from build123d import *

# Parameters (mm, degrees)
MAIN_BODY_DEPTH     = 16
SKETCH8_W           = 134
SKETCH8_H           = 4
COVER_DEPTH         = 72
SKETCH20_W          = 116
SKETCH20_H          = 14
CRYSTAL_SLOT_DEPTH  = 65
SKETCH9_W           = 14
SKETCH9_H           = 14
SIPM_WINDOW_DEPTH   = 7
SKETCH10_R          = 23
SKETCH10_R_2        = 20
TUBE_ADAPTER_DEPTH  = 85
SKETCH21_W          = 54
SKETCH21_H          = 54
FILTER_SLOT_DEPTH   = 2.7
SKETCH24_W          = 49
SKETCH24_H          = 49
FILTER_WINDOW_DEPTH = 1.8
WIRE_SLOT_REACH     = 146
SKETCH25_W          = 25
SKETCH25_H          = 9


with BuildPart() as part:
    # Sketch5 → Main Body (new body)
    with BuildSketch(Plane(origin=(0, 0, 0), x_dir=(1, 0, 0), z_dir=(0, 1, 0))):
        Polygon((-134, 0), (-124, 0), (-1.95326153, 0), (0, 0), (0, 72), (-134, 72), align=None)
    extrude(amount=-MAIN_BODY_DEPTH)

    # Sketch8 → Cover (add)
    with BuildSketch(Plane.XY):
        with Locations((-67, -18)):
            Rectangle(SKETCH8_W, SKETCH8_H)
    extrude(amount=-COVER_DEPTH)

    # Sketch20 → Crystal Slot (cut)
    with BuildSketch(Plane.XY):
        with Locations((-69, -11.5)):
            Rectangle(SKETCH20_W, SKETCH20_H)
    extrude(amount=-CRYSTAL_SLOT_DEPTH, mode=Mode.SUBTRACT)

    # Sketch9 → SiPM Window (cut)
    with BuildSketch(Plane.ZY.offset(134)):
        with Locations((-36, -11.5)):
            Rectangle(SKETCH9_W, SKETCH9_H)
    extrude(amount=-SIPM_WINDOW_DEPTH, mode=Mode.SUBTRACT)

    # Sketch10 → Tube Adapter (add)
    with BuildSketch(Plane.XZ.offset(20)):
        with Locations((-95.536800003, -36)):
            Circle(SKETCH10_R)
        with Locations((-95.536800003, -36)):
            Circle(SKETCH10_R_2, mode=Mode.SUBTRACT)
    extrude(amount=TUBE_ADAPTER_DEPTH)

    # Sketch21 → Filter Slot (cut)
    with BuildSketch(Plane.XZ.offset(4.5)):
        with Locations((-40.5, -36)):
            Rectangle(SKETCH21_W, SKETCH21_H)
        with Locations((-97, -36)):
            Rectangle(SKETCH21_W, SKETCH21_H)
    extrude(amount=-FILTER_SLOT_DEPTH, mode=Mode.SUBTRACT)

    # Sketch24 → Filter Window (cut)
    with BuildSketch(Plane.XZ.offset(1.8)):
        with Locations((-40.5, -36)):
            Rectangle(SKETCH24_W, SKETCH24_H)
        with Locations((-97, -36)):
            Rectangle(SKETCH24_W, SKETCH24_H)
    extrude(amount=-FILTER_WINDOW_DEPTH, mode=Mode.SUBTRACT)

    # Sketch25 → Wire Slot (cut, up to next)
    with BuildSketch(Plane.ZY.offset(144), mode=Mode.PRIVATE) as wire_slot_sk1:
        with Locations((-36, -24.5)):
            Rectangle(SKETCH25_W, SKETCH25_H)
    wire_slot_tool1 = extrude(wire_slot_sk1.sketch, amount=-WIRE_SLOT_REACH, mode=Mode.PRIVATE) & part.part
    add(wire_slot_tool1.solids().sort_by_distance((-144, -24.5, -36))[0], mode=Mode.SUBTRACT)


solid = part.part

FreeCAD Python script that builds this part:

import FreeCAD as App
import Part
import Sketcher

doc = App.newDocument("Part")
params = doc.addObject("Spreadsheet::Sheet", "Params")
for row, (alias, value) in enumerate([
    ("sketch1_width", "134 mm"),
    ("sketch1_height", "72 mm"),
    ("pad1_length", "16 mm"),
    ("sketch2_width", "134 mm"),
    ("sketch2_height", "4 mm"),
    ("pad2_length", "72 mm"),
    ("sketch3_width", "116 mm"),
    ("sketch3_height", "14 mm"),
    ("pocket1_length", "65 mm"),
    ("sketch4_width", "14 mm"),
    ("pocket2_length", "7 mm"),
    ("sketch5_diameter", "46 mm"),
    ("sketch5_diameter2", "40 mm"),
    ("pad3_length", "85 mm"),
    ("sketch6_width", "54 mm"),
    ("pocket3_length", "2.7 mm"),
    ("sketch7_width", "49 mm"),
    ("pocket4_length", "1.8 mm"),
    ("sketch8_width", "9 mm"),
    ("sketch8_height", "25 mm"),
    ("pocket5_length", "32.850705 mm"),
], start=1):
    params.set(f"A{row}", alias)
    params.set(f"B{row}", "=" + value)
    params.setAlias(f"B{row}", alias)

body = doc.addObject("PartDesign::Body", "Body")

# Sketch on XZ plane
sketch1 = doc.addObject("Sketcher::SketchObject", "Sketch")
body.addObject(sketch1)
sketch1.AttachmentSupport = (doc.XZ_Plane, [""])
sketch1.MapMode = "FlatFace"
sketch1.addGeometry(Part.LineSegment(App.Vector(-134, 0, 0), App.Vector(0, 0, 0)), False)
sketch1.addGeometry(Part.LineSegment(App.Vector(0, 0, 0), App.Vector(0, -72, 0)), False)
sketch1.addGeometry(Part.LineSegment(App.Vector(0, -72, 0), App.Vector(-134, -72, 0)), False)
sketch1.addGeometry(Part.LineSegment(App.Vector(-134, -72, 0), App.Vector(-134, 0, 0)), False)
sketch1.addConstraint(Sketcher.Constraint("Coincident", 0, 2, 1, 1))
sketch1.addConstraint(Sketcher.Constraint("Coincident", 1, 2, 2, 1))
sketch1.addConstraint(Sketcher.Constraint("Coincident", 2, 2, 3, 1))
sketch1.addConstraint(Sketcher.Constraint("Coincident", 3, 2, 0, 1))
sketch1.addConstraint(Sketcher.Constraint("Horizontal", 0))
sketch1.addConstraint(Sketcher.Constraint("Vertical", 1))
sketch1.addConstraint(Sketcher.Constraint("Horizontal", 2))
sketch1.addConstraint(Sketcher.Constraint("Vertical", 3))
sketch1.addConstraint(Sketcher.Constraint("Coincident", 0, 2, -1, 1))
sketch1.addConstraint(Sketcher.Constraint("DistanceX", 0, 1, 0, 2, 134.0))
sketch1.addConstraint(Sketcher.Constraint("DistanceY", 1, 2, 1, 1, 72.0))
sketch1.setExpression("Constraints[9]", "Params.sketch1_width")
sketch1.setExpression("Constraints[10]", "Params.sketch1_height")
pad1 = doc.addObject("PartDesign::Pad", "Pad")
body.addObject(pad1)
pad1.Profile = sketch1
pad1.setExpression("Length", "Params.pad1_length")

# Sketch on XY plane
sketch2 = doc.addObject("Sketcher::SketchObject", "Sketch001")
body.addObject(sketch2)
sketch2.AttachmentSupport = (doc.XY_Plane, [""])
sketch2.MapMode = "FlatFace"
sketch2.addGeometry(Part.LineSegment(App.Vector(-134, -16, 0), App.Vector(-134, -20, 0)), False)
sketch2.addGeometry(Part.LineSegment(App.Vector(-134, -20, 0), App.Vector(0, -20, 0)), False)
sketch2.addGeometry(Part.LineSegment(App.Vector(0, -20, 0), App.Vector(0, -16, 0)), False)
sketch2.addGeometry(Part.LineSegment(App.Vector(0, -16, 0), App.Vector(-134, -16, 0)), False)
sketch2.addConstraint(Sketcher.Constraint("Coincident", 0, 2, 1, 1))
sketch2.addConstraint(Sketcher.Constraint("Coincident", 1, 2, 2, 1))
sketch2.addConstraint(Sketcher.Constraint("Coincident", 2, 2, 3, 1))
sketch2.addConstraint(Sketcher.Constraint("Coincident", 3, 2, 0, 1))
sketch2.addConstraint(Sketcher.Constraint("Vertical", 0))
sketch2.addConstraint(Sketcher.Constraint("Horizontal", 1))
sketch2.addConstraint(Sketcher.Constraint("Vertical", 2))
sketch2.addConstraint(Sketcher.Constraint("Horizontal", 3))
sketch2.addConstraint(Sketcher.Constraint("PointOnObject", 1, 2, -2))
sketch2.addConstraint(Sketcher.Constraint("DistanceX", 1, 1, 1, 2, 134.0))
sketch2.addConstraint(Sketcher.Constraint("DistanceY", 0, 2, 0, 1, 4.0))
sketch2.addConstraint(Sketcher.Constraint("DistanceY", 0, 2, -1, 1, 20.0))
sketch2.setExpression("Constraints[9]", "Params.sketch2_width")
sketch2.setExpression("Constraints[10]", "Params.sketch2_height")
pad2 = doc.addObject("PartDesign::Pad", "Pad001")
body.addObject(pad2)
pad2.Profile = sketch2
pad2.setExpression("Length", "Params.pad2_length")
pad2.Reversed = True

# Sketch on XY plane
sketch3 = doc.addObject("Sketcher::SketchObject", "Sketch002")
body.addObject(sketch3)
sketch3.AttachmentSupport = (doc.XY_Plane, [""])
sketch3.MapMode = "FlatFace"
sketch3.addGeometry(Part.LineSegment(App.Vector(-127, -4.5, 0), App.Vector(-127, -18.5, 0)), False)
sketch3.addGeometry(Part.LineSegment(App.Vector(-127, -18.5, 0), App.Vector(-11, -18.5, 0)), False)
sketch3.addGeometry(Part.LineSegment(App.Vector(-11, -18.5, 0), App.Vector(-11, -4.5, 0)), False)
sketch3.addGeometry(Part.LineSegment(App.Vector(-11, -4.5, 0), App.Vector(-127, -4.5, 0)), False)
sketch3.addConstraint(Sketcher.Constraint("Coincident", 0, 2, 1, 1))
sketch3.addConstraint(Sketcher.Constraint("Coincident", 1, 2, 2, 1))
sketch3.addConstraint(Sketcher.Constraint("Coincident", 2, 2, 3, 1))
sketch3.addConstraint(Sketcher.Constraint("Coincident", 3, 2, 0, 1))
sketch3.addConstraint(Sketcher.Constraint("Vertical", 0))
sketch3.addConstraint(Sketcher.Constraint("Horizontal", 1))
sketch3.addConstraint(Sketcher.Constraint("Vertical", 2))
sketch3.addConstraint(Sketcher.Constraint("Horizontal", 3))
sketch3.addConstraint(Sketcher.Constraint("DistanceX", 1, 1, 1, 2, 116.0))
sketch3.addConstraint(Sketcher.Constraint("DistanceY", 0, 2, 0, 1, 14.0))
sketch3.addConstraint(Sketcher.Constraint("DistanceX", 0, 2, -1, 1, 127.0))
sketch3.addConstraint(Sketcher.Constraint("DistanceY", 0, 2, -1, 1, 18.5))
sketch3.setExpression("Constraints[8]", "Params.sketch3_width")
sketch3.setExpression("Constraints[9]", "Params.sketch3_height")
pocket1 = doc.addObject("PartDesign::Pocket", "Pocket")
body.addObject(pocket1)
pocket1.Profile = sketch3
pocket1.setExpression("Length", "Params.pocket1_length")

# Sketch on YZ plane
sketch4 = doc.addObject("Sketcher::SketchObject", "Sketch003")
body.addObject(sketch4)
sketch4.AttachmentSupport = (doc.YZ_Plane, [""])
sketch4.MapMode = "FlatFace"
sketch4.AttachmentOffset = App.Placement(App.Vector(0, 0, -134), App.Rotation())
sketch4.addGeometry(Part.LineSegment(App.Vector(-4.5, -43, 0), App.Vector(-18.5, -43, 0)), False)
sketch4.addGeometry(Part.LineSegment(App.Vector(-18.5, -43, 0), App.Vector(-18.5, -29, 0)), False)
sketch4.addGeometry(Part.LineSegment(App.Vector(-18.5, -29, 0), App.Vector(-4.5, -29, 0)), False)
sketch4.addGeometry(Part.LineSegment(App.Vector(-4.5, -29, 0), App.Vector(-4.5, -43, 0)), False)
sketch4.addConstraint(Sketcher.Constraint("Coincident", 0, 2, 1, 1))
sketch4.addConstraint(Sketcher.Constraint("Coincident", 1, 2, 2, 1))
sketch4.addConstraint(Sketcher.Constraint("Coincident", 2, 2, 3, 1))
sketch4.addConstraint(Sketcher.Constraint("Coincident", 3, 2, 0, 1))
sketch4.addConstraint(Sketcher.Constraint("Horizontal", 0))
sketch4.addConstraint(Sketcher.Constraint("Vertical", 1))
sketch4.addConstraint(Sketcher.Constraint("Horizontal", 2))
sketch4.addConstraint(Sketcher.Constraint("Vertical", 3))
sketch4.addConstraint(Sketcher.Constraint("Equal", 2, 1))
sketch4.addConstraint(Sketcher.Constraint("DistanceX", 0, 2, 0, 1, 14.0))
sketch4.addConstraint(Sketcher.Constraint("DistanceY", 0, 2, -1, 1, 43.0))
sketch4.addConstraint(Sketcher.Constraint("DistanceX", 0, 2, -1, 1, 18.5))
sketch4.setExpression("Constraints[9]", "Params.sketch4_width")
pocket2 = doc.addObject("PartDesign::Pocket", "Pocket001")
body.addObject(pocket2)
pocket2.Profile = sketch4
pocket2.setExpression("Length", "Params.pocket2_length")
pocket2.Reversed = True

# Sketch on XZ plane
sketch5 = doc.addObject("Sketcher::SketchObject", "Sketch004")
body.addObject(sketch5)
sketch5.AttachmentSupport = (doc.XZ_Plane, [""])
sketch5.MapMode = "FlatFace"
sketch5.AttachmentOffset = App.Placement(App.Vector(0, 0, 20), App.Rotation())
sketch5.addGeometry(Part.Circle(App.Vector(-95.5368, -36, 0), App.Vector(0, 0, 1), 23), False)
sketch5.addGeometry(Part.Circle(App.Vector(-95.5368, -36, 0), App.Vector(0, 0, 1), 20), False)
sketch5.addConstraint(Sketcher.Constraint("Coincident", 1, 3, 0, 3))
sketch5.addConstraint(Sketcher.Constraint("Diameter", 0, 46.0))
sketch5.addConstraint(Sketcher.Constraint("Diameter", 1, 40.0))
sketch5.addConstraint(Sketcher.Constraint("DistanceY", 0, 3, -1, 1, 36.0))
sketch5.addConstraint(Sketcher.Constraint("DistanceX", 0, 3, -1, 1, 95.5368))
sketch5.setExpression("Constraints[1]", "Params.sketch5_diameter")
sketch5.setExpression("Constraints[2]", "Params.sketch5_diameter2")
pad3 = doc.addObject("PartDesign::Pad", "Pad002")
body.addObject(pad3)
pad3.Profile = sketch5
pad3.setExpression("Length", "Params.pad3_length")

# Sketch on XZ plane
sketch6 = doc.addObject("Sketcher::SketchObject", "Sketch005")
body.addObject(sketch6)
sketch6.AttachmentSupport = (doc.XZ_Plane, [""])
sketch6.MapMode = "FlatFace"
sketch6.AttachmentOffset = App.Placement(App.Vector(0, 0, 4.5), App.Rotation())
sketch6.addGeometry(Part.LineSegment(App.Vector(-67.5, -9, 0), App.Vector(-67.5, -63, 0)), False)
sketch6.addGeometry(Part.LineSegment(App.Vector(-67.5, -63, 0), App.Vector(-13.5, -63, 0)), False)
sketch6.addGeometry(Part.LineSegment(App.Vector(-13.5, -63, 0), App.Vector(-13.5, -9, 0)), False)
sketch6.addGeometry(Part.LineSegment(App.Vector(-13.5, -9, 0), App.Vector(-67.5, -9, 0)), False)
sketch6.addGeometry(Part.LineSegment(App.Vector(-124, -9, 0), App.Vector(-124, -63, 0)), False)
sketch6.addGeometry(Part.LineSegment(App.Vector(-124, -63, 0), App.Vector(-70, -63, 0)), False)
sketch6.addGeometry(Part.LineSegment(App.Vector(-70, -63, 0), App.Vector(-70, -9, 0)), False)
sketch6.addGeometry(Part.LineSegment(App.Vector(-70, -9, 0), App.Vector(-124, -9, 0)), False)
sketch6.addConstraint(Sketcher.Constraint("Coincident", 0, 2, 1, 1))
sketch6.addConstraint(Sketcher.Constraint("Coincident", 1, 2, 2, 1))
sketch6.addConstraint(Sketcher.Constraint("Coincident", 2, 2, 3, 1))
sketch6.addConstraint(Sketcher.Constraint("Coincident", 3, 2, 0, 1))
sketch6.addConstraint(Sketcher.Constraint("Coincident", 4, 2, 5, 1))
sketch6.addConstraint(Sketcher.Constraint("Coincident", 5, 2, 6, 1))
sketch6.addConstraint(Sketcher.Constraint("Coincident", 6, 2, 7, 1))
sketch6.addConstraint(Sketcher.Constraint("Coincident", 7, 2, 4, 1))
sketch6.addConstraint(Sketcher.Constraint("Vertical", 0))
sketch6.addConstraint(Sketcher.Constraint("Horizontal", 1))
sketch6.addConstraint(Sketcher.Constraint("Vertical", 2))
sketch6.addConstraint(Sketcher.Constraint("Horizontal", 3))
sketch6.addConstraint(Sketcher.Constraint("Vertical", 4))
sketch6.addConstraint(Sketcher.Constraint("Horizontal", 5))
sketch6.addConstraint(Sketcher.Constraint("Vertical", 6))
sketch6.addConstraint(Sketcher.Constraint("Horizontal", 7))
sketch6.addConstraint(Sketcher.Constraint("Horizontal", 1, 2, 4, 2))
sketch6.addConstraint(Sketcher.Constraint("Horizontal", 3, 2, 6, 2))
sketch6.addConstraint(Sketcher.Constraint("Equal", 3, 5))
sketch6.addConstraint(Sketcher.Constraint("Equal", 7, 0))
sketch6.addConstraint(Sketcher.Constraint("DistanceX", 1, 1, 1, 2, 54.0))
sketch6.addConstraint(Sketcher.Constraint("DistanceY", 0, 2, -1, 1, 63.0))
sketch6.addConstraint(Sketcher.Constraint("DistanceX", 4, 2, -1, 1, 124.0))
sketch6.addConstraint(Sketcher.Constraint("DistanceX", 0, 2, -1, 1, 67.5))
sketch6.setExpression("Constraints[20]", "Params.sketch6_width")
pocket3 = doc.addObject("PartDesign::Pocket", "Pocket002")
body.addObject(pocket3)
pocket3.Profile = sketch6
pocket3.setExpression("Length", "Params.pocket3_length")

# Sketch on XZ plane
sketch7 = doc.addObject("Sketcher::SketchObject", "Sketch006")
body.addObject(sketch7)
sketch7.AttachmentSupport = (doc.XZ_Plane, [""])
sketch7.MapMode = "FlatFace"
sketch7.AttachmentOffset = App.Placement(App.Vector(0, 0, 1.8), App.Rotation())
sketch7.addGeometry(Part.LineSegment(App.Vector(-65, -11.5, 0), App.Vector(-65, -60.5, 0)), False)
sketch7.addGeometry(Part.LineSegment(App.Vector(-65, -60.5, 0), App.Vector(-16, -60.5, 0)), False)
sketch7.addGeometry(Part.LineSegment(App.Vector(-16, -60.5, 0), App.Vector(-16, -11.5, 0)), False)
sketch7.addGeometry(Part.LineSegment(App.Vector(-16, -11.5, 0), App.Vector(-65, -11.5, 0)), False)
sketch7.addGeometry(Part.LineSegment(App.Vector(-121.5, -11.5, 0), App.Vector(-121.5, -60.5, 0)), False)
sketch7.addGeometry(Part.LineSegment(App.Vector(-121.5, -60.5, 0), App.Vector(-72.5, -60.5, 0)), False)
sketch7.addGeometry(Part.LineSegment(App.Vector(-72.5, -60.5, 0), App.Vector(-72.5, -11.5, 0)), False)
sketch7.addGeometry(Part.LineSegment(App.Vector(-72.5, -11.5, 0), App.Vector(-121.5, -11.5, 0)), False)
sketch7.addConstraint(Sketcher.Constraint("Coincident", 0, 2, 1, 1))
sketch7.addConstraint(Sketcher.Constraint("Coincident", 1, 2, 2, 1))
sketch7.addConstraint(Sketcher.Constraint("Coincident", 2, 2, 3, 1))
sketch7.addConstraint(Sketcher.Constraint("Coincident", 3, 2, 0, 1))
sketch7.addConstraint(Sketcher.Constraint("Coincident", 4, 2, 5, 1))
sketch7.addConstraint(Sketcher.Constraint("Coincident", 5, 2, 6, 1))
sketch7.addConstraint(Sketcher.Constraint("Coincident", 6, 2, 7, 1))
sketch7.addConstraint(Sketcher.Constraint("Coincident", 7, 2, 4, 1))
sketch7.addConstraint(Sketcher.Constraint("Vertical", 0))
sketch7.addConstraint(Sketcher.Constraint("Horizontal", 1))
sketch7.addConstraint(Sketcher.Constraint("Vertical", 2))
sketch7.addConstraint(Sketcher.Constraint("Horizontal", 3))
sketch7.addConstraint(Sketcher.Constraint("Vertical", 4))
sketch7.addConstraint(Sketcher.Constraint("Horizontal", 5))
sketch7.addConstraint(Sketcher.Constraint("Vertical", 6))
sketch7.addConstraint(Sketcher.Constraint("Horizontal", 7))
sketch7.addConstraint(Sketcher.Constraint("Horizontal", 1, 2, 4, 2))
sketch7.addConstraint(Sketcher.Constraint("Horizontal", 3, 2, 6, 2))
sketch7.addConstraint(Sketcher.Constraint("Equal", 3, 5))
sketch7.addConstraint(Sketcher.Constraint("Equal", 7, 0))
sketch7.addConstraint(Sketcher.Constraint("DistanceX", 1, 1, 1, 2, 49.0))
sketch7.addConstraint(Sketcher.Constraint("DistanceX", 0, 2, -1, 1, 65.0))
sketch7.addConstraint(Sketcher.Constraint("DistanceY", 0, 2, -1, 1, 60.5))
sketch7.addConstraint(Sketcher.Constraint("DistanceX", 4, 2, -1, 1, 121.5))
sketch7.setExpression("Constraints[20]", "Params.sketch7_width")
pocket4 = doc.addObject("PartDesign::Pocket", "Pocket003")
body.addObject(pocket4)
pocket4.Profile = sketch7
pocket4.setExpression("Length", "Params.pocket4_length")

# Sketch on YZ plane
sketch8 = doc.addObject("Sketcher::SketchObject", "Sketch007")
body.addObject(sketch8)
sketch8.AttachmentSupport = (doc.YZ_Plane, [""])
sketch8.MapMode = "FlatFace"
sketch8.AttachmentOffset = App.Placement(App.Vector(0, 0, -144), App.Rotation())
sketch8.addGeometry(Part.LineSegment(App.Vector(-20, -48.5, 0), App.Vector(-29, -48.5, 0)), False)
sketch8.addGeometry(Part.LineSegment(App.Vector(-29, -48.5, 0), App.Vector(-29, -23.5, 0)), False)
sketch8.addGeometry(Part.LineSegment(App.Vector(-29, -23.5, 0), App.Vector(-20, -23.5, 0)), False)
sketch8.addGeometry(Part.LineSegment(App.Vector(-20, -23.5, 0), App.Vector(-20, -48.5, 0)), False)
sketch8.addConstraint(Sketcher.Constraint("Coincident", 0, 2, 1, 1))
sketch8.addConstraint(Sketcher.Constraint("Coincident", 1, 2, 2, 1))
sketch8.addConstraint(Sketcher.Constraint("Coincident", 2, 2, 3, 1))
sketch8.addConstraint(Sketcher.Constraint("Coincident", 3, 2, 0, 1))
sketch8.addConstraint(Sketcher.Constraint("Horizontal", 0))
sketch8.addConstraint(Sketcher.Constraint("Vertical", 1))
sketch8.addConstraint(Sketcher.Constraint("Horizontal", 2))
sketch8.addConstraint(Sketcher.Constraint("Vertical", 3))
sketch8.addConstraint(Sketcher.Constraint("DistanceX", 0, 2, 0, 1, 9.0))
sketch8.addConstraint(Sketcher.Constraint("DistanceY", 1, 1, 1, 2, 25.0))
sketch8.addConstraint(Sketcher.Constraint("DistanceX", 0, 2, -1, 1, 29.0))
sketch8.addConstraint(Sketcher.Constraint("DistanceY", 0, 2, -1, 1, 48.5))
sketch8.setExpression("Constraints[8]", "Params.sketch8_width")
sketch8.setExpression("Constraints[9]", "Params.sketch8_height")
pocket5 = doc.addObject("PartDesign::Pocket", "Pocket004")
body.addObject(pocket5)
pocket5.Profile = sketch8
pocket5.setExpression("Length", "Params.pocket5_length")
pocket5.Reversed = True

doc.recompute()
